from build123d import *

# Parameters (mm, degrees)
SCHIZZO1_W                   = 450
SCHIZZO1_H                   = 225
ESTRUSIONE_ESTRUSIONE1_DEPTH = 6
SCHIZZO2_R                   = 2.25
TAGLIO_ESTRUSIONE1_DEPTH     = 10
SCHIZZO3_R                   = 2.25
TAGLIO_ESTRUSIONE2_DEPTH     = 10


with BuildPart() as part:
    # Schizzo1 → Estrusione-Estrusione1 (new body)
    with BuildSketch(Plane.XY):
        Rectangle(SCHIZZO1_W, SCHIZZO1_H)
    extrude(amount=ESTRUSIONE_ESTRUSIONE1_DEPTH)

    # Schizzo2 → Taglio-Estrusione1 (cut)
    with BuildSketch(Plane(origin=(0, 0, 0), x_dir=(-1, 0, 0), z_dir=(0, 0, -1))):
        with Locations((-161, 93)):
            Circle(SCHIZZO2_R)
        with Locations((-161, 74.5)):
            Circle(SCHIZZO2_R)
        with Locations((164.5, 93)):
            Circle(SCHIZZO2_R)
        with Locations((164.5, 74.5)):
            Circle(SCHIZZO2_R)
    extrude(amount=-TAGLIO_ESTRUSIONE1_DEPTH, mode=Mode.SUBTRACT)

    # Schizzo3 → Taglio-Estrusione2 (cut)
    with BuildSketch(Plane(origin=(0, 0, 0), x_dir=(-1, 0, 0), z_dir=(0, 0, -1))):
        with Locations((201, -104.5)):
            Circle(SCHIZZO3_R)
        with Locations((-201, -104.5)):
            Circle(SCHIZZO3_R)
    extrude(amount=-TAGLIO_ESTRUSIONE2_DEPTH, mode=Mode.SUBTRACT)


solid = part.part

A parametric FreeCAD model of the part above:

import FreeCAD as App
import Part
import Sketcher
from FreeCAD import Vector

doc = App.newDocument("Part")
params = doc.addObject("Spreadsheet::Sheet", "Params")
for row, (alias, value) in enumerate([
    ("sketch1_width", "450 mm"),
    ("sketch1_height", "225 mm"),
    ("pad1_length", "6 mm"),
    ("sketch2_diameter", "4.5 mm"),
    ("pocket1_length", "10 mm"),
    ("sketch3_diameter", "4.5 mm"),
    ("pocket2_length", "10 mm"),
], start=1):
    params.set(f"A{row}", alias)
    params.set(f"B{row}", "=" + value)
    params.setAlias(f"B{row}", alias)

body = doc.addObject("PartDesign::Body", "Body")

sketch1 = doc.addObject("Sketcher::SketchObject", "Sketch")
body.addObject(sketch1)
sketch1.AttachmentSupport = (doc.XY_Plane, [""])
sketch1.MapMode = "FlatFace"
sketch1.addGeometry([
    Part.LineSegment(Vector(-225, 112.5, 0), Vector(-225, -112.5, 0)),
    Part.LineSegment(Vector(-225, -112.5, 0), Vector(225, -112.5, 0)),
    Part.LineSegment(Vector(225, -112.5, 0), Vector(225, 112.5, 0)),
    Part.LineSegment(Vector(225, 112.5, 0), Vector(-225, 112.5, 0)),
], False)
sketch1.addConstraint([
    Sketcher.Constraint("Coincident", 0, 2, 1, 1),
    Sketcher.Constraint("Coincident", 1, 2, 2, 1),
    Sketcher.Constraint("Coincident", 2, 2, 3, 1),
    Sketcher.Constraint("Coincident", 3, 2, 0, 1),
    Sketcher.Constraint("Vertical", 0),
    Sketcher.Constraint("Horizontal", 1),
    Sketcher.Constraint("Vertical", 2),
    Sketcher.Constraint("Horizontal", 3),
    Sketcher.Constraint("Symmetric", 0, 2, 2, 2, -1, 1),
    Sketcher.Constraint("DistanceX", 1, 1, 1, 2, 450.0),
    Sketcher.Constraint("DistanceY", 0, 2, 0, 1, 225.0),
])
sketch1.setExpression("Constraints[9]", "Params.sketch1_width")
sketch1.setExpression("Constraints[10]", "Params.sketch1_height")
pad1 = doc.addObject("PartDesign::Pad", "Pad")
body.addObject(pad1)
pad1.Profile = sketch1
pad1.setExpression("Length", "Params.pad1_length")

sketch2 = doc.addObject("Sketcher::SketchObject", "Sketch001")
body.addObject(sketch2)
sketch2.AttachmentSupport = (doc.XY_Plane, [""])
sketch2.MapMode = "FlatFace"
sketch2.addGeometry([
    Part.Circle(Vector(161, 93, 0), Vector(0, 0, 1), 2.25),
    Part.Circle(Vector(161, 74.5, 0), Vector(0, 0, 1), 2.25),
    Part.Circle(Vector(-164.5, 93, 0), Vector(0, 0, 1), 2.25),
    Part.Circle(Vector(-164.5, 74.5, 0), Vector(0, 0, 1), 2.25),
], False)
sketch2.addConstraint([
    Sketcher.Constraint("Equal", 0, 1),
    Sketcher.Constraint("Equal", 1, 2),
    Sketcher.Constraint("Equal", 2, 3),
    Sketcher.Constraint("Horizontal", 0, 3, 2, 3),
    Sketcher.Constraint("Horizontal", 1, 3, 3, 3),
    Sketcher.Constraint("Vertical", 0, 3, 1, 3),
    Sketcher.Constraint("Vertical", 2, 3, 3, 3),
    Sketcher.Constraint("Diameter", 0, 4.5),
    Sketcher.Constraint("DistanceX", -1, 1, 0, 3, 161.0),
    Sketcher.Constraint("DistanceY", -1, 1, 0, 3, 93.0),
    Sketcher.Constraint("DistanceY", -1, 1, 1, 3, 74.5),
    Sketcher.Constraint("DistanceX", 2, 3, -1, 1, 164.5),
])
sketch2.setExpression("Constraints[7]", "Params.sketch2_diameter")
pocket1 = doc.addObject("PartDesign::Pocket", "Pocket")
body.addObject(pocket1)
pocket1.Profile = sketch2
pocket1.setExpression("Length", "Params.pocket1_length")
pocket1.Reversed = True

sketch3 = doc.addObject("Sketcher::SketchObject", "Sketch002")
body.addObject(sketch3)
sketch3.AttachmentSupport = (doc.XY_Plane, [""])
sketch3.MapMode = "FlatFace"
sketch3.addGeometry([
    Part.Circle(Vector(-201, -104.5, 0), Vector(0, 0, 1), 2.25),
    Part.Circle(Vector(201, -104.5, 0), Vector(0, 0, 1), 2.25),
], False)
sketch3.addConstraint([
    Sketcher.Constraint("Equal", 0, 1),
    Sketcher.Constraint("Symmetric", 0, 3, 1, 3, -2),
    Sketcher.Constraint("Diameter", 0, 4.5),
    Sketcher.Constraint("DistanceX", 0, 3, -1, 1, 201.0),
    Sketcher.Constraint("DistanceY", 0, 3, -1, 1, 104.5),
])
sketch3.setExpression("Constraints[2]", "Params.sketch3_diameter")
pocket2 = doc.addObject("PartDesign::Pocket", "Pocket001")
body.addObject(pocket2)
pocket2.Profile = sketch3
pocket2.setExpression("Length", "Params.pocket2_length")
pocket2.Reversed = True

doc.recompute()
